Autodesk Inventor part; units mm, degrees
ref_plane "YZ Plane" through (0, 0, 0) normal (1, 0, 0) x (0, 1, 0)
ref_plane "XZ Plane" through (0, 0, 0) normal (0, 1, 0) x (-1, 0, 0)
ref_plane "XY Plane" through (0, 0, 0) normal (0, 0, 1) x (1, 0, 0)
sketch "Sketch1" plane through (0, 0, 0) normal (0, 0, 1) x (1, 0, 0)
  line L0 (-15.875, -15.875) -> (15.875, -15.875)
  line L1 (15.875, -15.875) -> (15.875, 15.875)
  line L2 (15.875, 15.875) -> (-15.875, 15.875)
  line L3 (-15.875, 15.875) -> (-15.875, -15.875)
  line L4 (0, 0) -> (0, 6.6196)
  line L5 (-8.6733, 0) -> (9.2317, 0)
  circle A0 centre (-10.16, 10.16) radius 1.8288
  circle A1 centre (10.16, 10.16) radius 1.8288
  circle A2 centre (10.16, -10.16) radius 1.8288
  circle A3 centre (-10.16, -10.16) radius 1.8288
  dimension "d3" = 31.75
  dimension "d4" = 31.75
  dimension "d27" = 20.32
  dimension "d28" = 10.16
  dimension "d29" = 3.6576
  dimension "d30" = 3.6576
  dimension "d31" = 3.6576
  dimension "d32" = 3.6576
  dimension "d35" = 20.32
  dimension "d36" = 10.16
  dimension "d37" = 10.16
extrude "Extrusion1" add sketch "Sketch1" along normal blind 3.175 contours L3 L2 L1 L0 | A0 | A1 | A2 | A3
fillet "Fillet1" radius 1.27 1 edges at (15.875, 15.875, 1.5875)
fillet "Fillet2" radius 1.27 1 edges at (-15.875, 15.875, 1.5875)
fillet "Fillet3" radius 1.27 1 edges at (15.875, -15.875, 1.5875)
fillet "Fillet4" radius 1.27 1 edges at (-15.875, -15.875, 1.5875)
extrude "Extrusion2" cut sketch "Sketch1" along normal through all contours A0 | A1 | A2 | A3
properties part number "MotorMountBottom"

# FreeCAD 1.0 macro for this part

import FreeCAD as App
import Part
import Sketcher

V = App.Vector
Q = App.Units.Quantity


def edges_at(feature, points):
    """Names of the edges that pass closest to the given points."""
    edges = feature.Shape.Edges
    near = lambda p: min(range(len(edges)), key=lambda i: edges[i].distToShape(Part.Vertex(*p))[0])
    return sorted({f"Edge{near(p) + 1}" for p in points})


def add_polygon(sketch, points):
    """Adds a closed chain of lines whose ends are joined by coincident constraints."""
    first, n = sketch.GeometryCount, len(points)
    for a, b in zip(points, points[1:] + points[:1]):
        sketch.addGeometry(Part.LineSegment(App.Vector(*a, 0), App.Vector(*b, 0)), False)
    for i in range(n):
        sketch.addConstraint(Sketcher.Constraint("Coincident", first + i, 2, first + (i + 1) % n, 1))

doc = App.newDocument("Part")
body = doc.addObject("PartDesign::Body", "Body")

# Sketch on XY plane
sketch1 = body.newObject("Sketcher::SketchObject", "Sketch")
sketch1.AttachmentSupport = (doc.getObject("XY_Plane"), [""])
sketch1.MapMode = "FlatFace"
add_polygon(sketch1, [(-16, 16), (-16, -16), (16, -16), (16, 16)])  # lines 0-3
sketch1.addConstraint([
    Sketcher.Constraint("Vertical", 0),
    Sketcher.Constraint("Horizontal", 1),
    Sketcher.Constraint("Vertical", 2),
    Sketcher.Constraint("Horizontal", 3),
    Sketcher.Constraint("Symmetric", 0, 2, 2, 2, -1, 1),
    Sketcher.Constraint("Equal", 3, 0),
    Sketcher.Constraint("DistanceX", 1, 1, 1, 2, Q("1.25 in")),
])
pad1 = body.newObject("PartDesign::Pad", "Pad")
pad1.Profile = sketch1
pad1.Length = Q("0.125 in")
doc.recompute()

fillet = body.newObject("PartDesign::Fillet", "Fillet")
fillet.Base = (pad1, edges_at(pad1, [(15.875, 15.875, 1.587)]))
fillet.Radius = Q("0.05 in")
doc.recompute()

fillet2 = body.newObject("PartDesign::Fillet", "Fillet001")
fillet2.Base = (fillet, edges_at(fillet, [(-15.875, 15.875, 1.587)]))
fillet2.Radius = Q("0.05 in")
doc.recompute()

fillet3 = body.newObject("PartDesign::Fillet", "Fillet002")
fillet3.Base = (fillet2, edges_at(fillet2, [(15.875, -15.875, 1.587)]))
fillet3.Radius = Q("0.05 in")
doc.recompute()

fillet4 = body.newObject("PartDesign::Fillet", "Fillet003")
fillet4.Base = (fillet3, edges_at(fillet3, [(-15.875, -15.875, 1.587)]))
fillet4.Radius = Q("0.05 in")

# Sketch on XY plane
sketch2 = body.newObject("Sketcher::SketchObject", "Sketch001")
sketch2.AttachmentSupport = (doc.getObject("XY_Plane"), [""])
sketch2.MapMode = "FlatFace"
sketch2.addGeometry([
    Part.Circle(V(-10.2, 10.2, 0), V(0, 0, 1), 1.8),
    Part.Circle(V(10.2, 10.2, 0), V(0, 0, 1), 1.8),
    Part.Circle(V(10.2, -10.2, 0), V(0, 0, 1), 1.8),
    Part.Circle(V(-10.2, -10.2, 0), V(0, 0, 1), 1.8),
], False)
sketch2.addConstraint([
    Sketcher.Constraint("Equal", 0, 1),
    Sketcher.Constraint("Equal", 1, 2),
    Sketcher.Constraint("Equal", 2, 3),
    Sketcher.Constraint("Symmetric", 0, 3, 2, 3, -1, 1),
    Sketcher.Constraint("Symmetric", 1, 3, 3, 3, -1, 1),
    Sketcher.Constraint("Symmetric", 0, 3, 1, 3, -2),
    Sketcher.Constraint("Diameter", 0, Q("0.144 in")),
    Sketcher.Constraint("DistanceX", 0, 3, -1, 1, Q("0.4 in")),
    Sketcher.Constraint("DistanceY", -1, 1, 0, 3, Q("0.4 in")),
])
pocket1 = body.newObject("PartDesign::Pocket", "Pocket")
pocket1.Profile = sketch2
pocket1.Type = "ThroughAll"
pocket1.Reversed = True

doc.recompute()
